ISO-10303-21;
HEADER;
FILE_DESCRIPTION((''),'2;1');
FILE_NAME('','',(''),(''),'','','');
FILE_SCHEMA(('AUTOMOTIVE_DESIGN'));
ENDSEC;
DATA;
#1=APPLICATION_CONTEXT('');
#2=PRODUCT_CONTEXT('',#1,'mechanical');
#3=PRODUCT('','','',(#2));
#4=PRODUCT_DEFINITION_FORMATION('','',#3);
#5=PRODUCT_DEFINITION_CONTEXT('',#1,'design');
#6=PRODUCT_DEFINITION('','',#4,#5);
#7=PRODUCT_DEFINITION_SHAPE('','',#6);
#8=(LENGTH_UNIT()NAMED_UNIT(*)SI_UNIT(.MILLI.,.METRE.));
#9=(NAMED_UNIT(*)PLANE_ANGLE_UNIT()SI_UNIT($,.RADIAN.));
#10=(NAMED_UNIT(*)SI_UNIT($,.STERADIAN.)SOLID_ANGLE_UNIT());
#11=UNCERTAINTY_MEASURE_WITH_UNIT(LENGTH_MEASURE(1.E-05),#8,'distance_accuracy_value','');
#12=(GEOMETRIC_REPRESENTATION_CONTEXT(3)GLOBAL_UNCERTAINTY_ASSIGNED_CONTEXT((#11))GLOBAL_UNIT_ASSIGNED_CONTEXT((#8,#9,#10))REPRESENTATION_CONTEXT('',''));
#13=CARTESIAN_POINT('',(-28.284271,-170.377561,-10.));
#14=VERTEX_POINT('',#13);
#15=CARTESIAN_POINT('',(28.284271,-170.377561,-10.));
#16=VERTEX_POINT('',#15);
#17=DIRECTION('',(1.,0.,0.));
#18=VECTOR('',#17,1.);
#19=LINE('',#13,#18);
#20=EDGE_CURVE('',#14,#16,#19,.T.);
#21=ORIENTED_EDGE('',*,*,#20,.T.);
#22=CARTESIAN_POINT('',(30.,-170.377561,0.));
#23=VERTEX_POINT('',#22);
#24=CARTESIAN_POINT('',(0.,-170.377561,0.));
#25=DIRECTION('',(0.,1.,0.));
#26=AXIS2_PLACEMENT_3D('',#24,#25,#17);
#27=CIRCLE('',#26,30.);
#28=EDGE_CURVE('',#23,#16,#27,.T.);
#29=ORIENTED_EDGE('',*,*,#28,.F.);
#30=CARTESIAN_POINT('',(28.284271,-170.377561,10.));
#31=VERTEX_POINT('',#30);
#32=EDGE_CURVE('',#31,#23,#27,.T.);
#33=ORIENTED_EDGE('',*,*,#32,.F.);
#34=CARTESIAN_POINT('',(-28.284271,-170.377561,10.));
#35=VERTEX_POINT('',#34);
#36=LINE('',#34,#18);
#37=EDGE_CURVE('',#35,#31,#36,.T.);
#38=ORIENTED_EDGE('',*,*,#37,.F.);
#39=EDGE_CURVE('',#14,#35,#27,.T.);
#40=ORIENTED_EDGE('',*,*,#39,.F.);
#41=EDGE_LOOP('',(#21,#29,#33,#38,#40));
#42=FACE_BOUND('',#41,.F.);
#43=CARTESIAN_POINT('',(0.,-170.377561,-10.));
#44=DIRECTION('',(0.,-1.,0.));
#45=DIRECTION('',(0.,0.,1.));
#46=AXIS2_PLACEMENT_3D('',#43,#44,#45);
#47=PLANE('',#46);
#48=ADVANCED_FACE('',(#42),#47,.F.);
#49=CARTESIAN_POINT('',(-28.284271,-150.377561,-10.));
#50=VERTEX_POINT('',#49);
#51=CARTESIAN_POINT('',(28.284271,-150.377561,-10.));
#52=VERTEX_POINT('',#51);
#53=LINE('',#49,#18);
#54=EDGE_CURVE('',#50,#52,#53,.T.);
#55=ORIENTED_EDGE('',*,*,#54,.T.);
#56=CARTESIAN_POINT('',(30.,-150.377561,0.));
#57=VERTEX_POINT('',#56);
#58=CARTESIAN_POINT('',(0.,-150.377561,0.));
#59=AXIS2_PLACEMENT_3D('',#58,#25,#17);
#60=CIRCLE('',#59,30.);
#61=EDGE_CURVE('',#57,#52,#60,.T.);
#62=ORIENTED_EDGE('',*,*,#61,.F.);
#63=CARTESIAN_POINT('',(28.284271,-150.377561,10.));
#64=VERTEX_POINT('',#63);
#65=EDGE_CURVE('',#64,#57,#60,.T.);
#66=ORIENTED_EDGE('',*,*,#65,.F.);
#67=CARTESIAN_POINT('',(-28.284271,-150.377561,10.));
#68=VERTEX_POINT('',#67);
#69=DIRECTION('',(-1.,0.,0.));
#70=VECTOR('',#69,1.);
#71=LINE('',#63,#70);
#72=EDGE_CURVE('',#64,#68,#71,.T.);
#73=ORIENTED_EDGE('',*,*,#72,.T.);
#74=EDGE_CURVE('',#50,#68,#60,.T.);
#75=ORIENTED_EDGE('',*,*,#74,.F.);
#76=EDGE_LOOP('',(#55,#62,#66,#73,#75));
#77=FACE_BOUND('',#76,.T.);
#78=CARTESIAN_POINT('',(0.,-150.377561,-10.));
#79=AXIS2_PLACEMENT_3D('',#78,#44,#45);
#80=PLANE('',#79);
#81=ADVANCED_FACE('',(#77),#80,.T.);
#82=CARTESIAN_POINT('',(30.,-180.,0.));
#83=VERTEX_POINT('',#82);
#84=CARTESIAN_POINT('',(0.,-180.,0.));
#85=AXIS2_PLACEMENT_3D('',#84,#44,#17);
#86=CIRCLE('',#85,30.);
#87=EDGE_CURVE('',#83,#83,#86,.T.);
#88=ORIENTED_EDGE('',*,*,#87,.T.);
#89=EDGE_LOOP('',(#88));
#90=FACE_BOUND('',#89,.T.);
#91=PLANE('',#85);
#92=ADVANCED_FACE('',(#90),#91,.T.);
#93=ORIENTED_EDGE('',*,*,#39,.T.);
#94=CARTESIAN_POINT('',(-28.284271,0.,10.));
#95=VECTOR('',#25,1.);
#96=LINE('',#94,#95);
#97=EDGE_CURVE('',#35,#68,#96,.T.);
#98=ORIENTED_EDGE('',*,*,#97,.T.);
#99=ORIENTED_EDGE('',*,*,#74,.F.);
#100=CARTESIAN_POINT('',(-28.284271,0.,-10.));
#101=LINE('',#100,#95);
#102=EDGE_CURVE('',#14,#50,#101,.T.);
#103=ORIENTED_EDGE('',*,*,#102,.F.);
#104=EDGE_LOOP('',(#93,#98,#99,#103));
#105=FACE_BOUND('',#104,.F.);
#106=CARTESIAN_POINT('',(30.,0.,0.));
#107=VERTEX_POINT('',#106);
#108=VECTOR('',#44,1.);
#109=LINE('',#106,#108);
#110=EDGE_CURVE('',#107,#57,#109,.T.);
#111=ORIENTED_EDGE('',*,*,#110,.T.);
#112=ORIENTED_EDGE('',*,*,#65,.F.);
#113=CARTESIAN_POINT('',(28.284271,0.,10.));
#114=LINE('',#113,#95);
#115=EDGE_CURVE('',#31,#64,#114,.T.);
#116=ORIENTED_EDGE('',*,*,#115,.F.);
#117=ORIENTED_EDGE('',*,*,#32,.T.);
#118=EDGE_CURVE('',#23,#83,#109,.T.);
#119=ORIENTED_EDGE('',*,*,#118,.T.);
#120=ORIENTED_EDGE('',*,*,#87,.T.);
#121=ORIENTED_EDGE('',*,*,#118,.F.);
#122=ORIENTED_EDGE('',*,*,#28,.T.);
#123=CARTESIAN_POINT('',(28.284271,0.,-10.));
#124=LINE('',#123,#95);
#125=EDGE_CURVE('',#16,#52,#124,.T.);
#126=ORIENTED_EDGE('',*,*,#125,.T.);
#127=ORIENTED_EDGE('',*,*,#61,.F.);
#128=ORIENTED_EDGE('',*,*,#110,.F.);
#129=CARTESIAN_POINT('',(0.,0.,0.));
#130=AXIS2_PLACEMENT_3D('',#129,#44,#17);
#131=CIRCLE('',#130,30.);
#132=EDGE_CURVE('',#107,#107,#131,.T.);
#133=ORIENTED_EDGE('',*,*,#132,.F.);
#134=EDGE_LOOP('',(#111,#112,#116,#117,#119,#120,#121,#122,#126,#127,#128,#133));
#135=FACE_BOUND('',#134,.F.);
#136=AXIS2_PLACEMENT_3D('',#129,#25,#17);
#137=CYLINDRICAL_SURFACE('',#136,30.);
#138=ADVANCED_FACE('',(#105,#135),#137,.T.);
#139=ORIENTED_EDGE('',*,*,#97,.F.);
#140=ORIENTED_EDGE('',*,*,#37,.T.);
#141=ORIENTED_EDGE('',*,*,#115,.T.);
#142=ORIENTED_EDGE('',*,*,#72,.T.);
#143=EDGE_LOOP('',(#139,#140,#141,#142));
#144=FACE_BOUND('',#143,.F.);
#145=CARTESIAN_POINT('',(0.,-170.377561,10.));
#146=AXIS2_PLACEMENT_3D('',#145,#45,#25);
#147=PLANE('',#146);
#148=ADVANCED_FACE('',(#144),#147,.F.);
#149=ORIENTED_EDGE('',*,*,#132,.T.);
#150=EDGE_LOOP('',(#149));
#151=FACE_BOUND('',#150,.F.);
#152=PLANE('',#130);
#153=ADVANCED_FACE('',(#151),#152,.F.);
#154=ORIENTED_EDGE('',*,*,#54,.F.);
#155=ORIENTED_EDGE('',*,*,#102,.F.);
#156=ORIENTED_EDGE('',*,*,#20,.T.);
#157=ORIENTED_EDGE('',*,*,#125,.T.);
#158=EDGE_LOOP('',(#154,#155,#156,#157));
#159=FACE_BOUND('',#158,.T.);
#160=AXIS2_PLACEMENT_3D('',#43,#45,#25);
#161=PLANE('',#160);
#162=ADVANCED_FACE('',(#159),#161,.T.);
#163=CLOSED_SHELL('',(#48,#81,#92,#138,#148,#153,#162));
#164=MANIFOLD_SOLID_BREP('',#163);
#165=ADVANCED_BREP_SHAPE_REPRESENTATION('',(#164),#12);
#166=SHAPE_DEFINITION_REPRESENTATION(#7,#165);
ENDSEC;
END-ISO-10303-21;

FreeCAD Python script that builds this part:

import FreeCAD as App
import Part
import Sketcher

V = App.Vector
Q = App.Units.Quantity

doc = App.newDocument("Part")
params = doc.addObject("Spreadsheet::Sheet", "Params")
for row, (alias, value) in enumerate([
    ("sketch1_diameter", "60 mm"),
    ("pad1_length", "180 mm"),
    ("sketch2_width", "20 mm"),
], start=1):
    params.set(f"A{row}", alias)
    params.set(f"B{row}", "=" + value)
    params.setAlias(f"B{row}", alias)

body = doc.addObject("PartDesign::Body", "Body")

# Sketch on XZ plane
sketch1 = doc.addObject("Sketcher::SketchObject", "Sketch")
body.addObject(sketch1)
sketch1.AttachmentSupport = (doc.XZ_Plane, [""])
sketch1.MapMode = "FlatFace"
sketch1.addGeometry(Part.Circle(V(0, 0, 0), V(0, 0, 1), 30), False)
sketch1.addConstraint(Sketcher.Constraint("Coincident", 0, 3, -1, 1))
sketch1.addConstraint(Sketcher.Constraint("Diameter", 0, Q("60 mm")))
sketch1.setExpression("Constraints[1]", "Params.sketch1_diameter")
pad1 = doc.addObject("PartDesign::Pad", "Pad")
body.addObject(pad1)
pad1.Profile = sketch1
pad1.setExpression("Length", "Params.pad1_length")

# Sketch on YZ plane
sketch2 = doc.addObject("Sketcher::SketchObject", "Sketch001")
body.addObject(sketch2)
sketch2.AttachmentSupport = (doc.YZ_Plane, [""])
sketch2.MapMode = "FlatFace"
sketch2.addGeometry(Part.LineSegment(V(-170, 10, 0), V(-170, -10, 0)), False)
sketch2.addGeometry(Part.LineSegment(V(-170, -10, 0), V(-150, -10, 0)), False)
sketch2.addGeometry(Part.LineSegment(V(-150, -10, 0), V(-150, 10, 0)), False)
sketch2.addGeometry(Part.LineSegment(V(-150, 10, 0), V(-170, 10, 0)), False)
sketch2.addConstraint(Sketcher.Constraint("Coincident", 0, 2, 1, 1))
sketch2.addConstraint(Sketcher.Constraint("Coincident", 1, 2, 2, 1))
sketch2.addConstraint(Sketcher.Constraint("Coincident", 2, 2, 3, 1))
sketch2.addConstraint(Sketcher.Constraint("Coincident", 3, 2, 0, 1))
sketch2.addConstraint(Sketcher.Constraint("Vertical", 0))
sketch2.addConstraint(Sketcher.Constraint("Horizontal", 1))
sketch2.addConstraint(Sketcher.Constraint("Vertical", 2))
sketch2.addConstraint(Sketcher.Constraint("Horizontal", 3))
sketch2.addConstraint(Sketcher.Constraint("Equal", 3, 0))
sketch2.addConstraint(Sketcher.Constraint("DistanceX", 1, 1, 1, 2, Q("20 mm")))
sketch2.addConstraint(Sketcher.Constraint("DistanceY", 0, 2, -1, 1, Q("10 mm")))
sketch2.addConstraint(Sketcher.Constraint("DistanceX", 0, 2, -1, 1, Q("170.377561 mm")))
sketch2.setExpression("Constraints[9]", "Params.sketch2_width")
pocket1 = doc.addObject("PartDesign::Pocket", "Pocket")
body.addObject(pocket1)
pocket1.Profile = sketch2
pocket1.Type = "ThroughAll"
pocket1.Midplane = True

doc.recompute()
